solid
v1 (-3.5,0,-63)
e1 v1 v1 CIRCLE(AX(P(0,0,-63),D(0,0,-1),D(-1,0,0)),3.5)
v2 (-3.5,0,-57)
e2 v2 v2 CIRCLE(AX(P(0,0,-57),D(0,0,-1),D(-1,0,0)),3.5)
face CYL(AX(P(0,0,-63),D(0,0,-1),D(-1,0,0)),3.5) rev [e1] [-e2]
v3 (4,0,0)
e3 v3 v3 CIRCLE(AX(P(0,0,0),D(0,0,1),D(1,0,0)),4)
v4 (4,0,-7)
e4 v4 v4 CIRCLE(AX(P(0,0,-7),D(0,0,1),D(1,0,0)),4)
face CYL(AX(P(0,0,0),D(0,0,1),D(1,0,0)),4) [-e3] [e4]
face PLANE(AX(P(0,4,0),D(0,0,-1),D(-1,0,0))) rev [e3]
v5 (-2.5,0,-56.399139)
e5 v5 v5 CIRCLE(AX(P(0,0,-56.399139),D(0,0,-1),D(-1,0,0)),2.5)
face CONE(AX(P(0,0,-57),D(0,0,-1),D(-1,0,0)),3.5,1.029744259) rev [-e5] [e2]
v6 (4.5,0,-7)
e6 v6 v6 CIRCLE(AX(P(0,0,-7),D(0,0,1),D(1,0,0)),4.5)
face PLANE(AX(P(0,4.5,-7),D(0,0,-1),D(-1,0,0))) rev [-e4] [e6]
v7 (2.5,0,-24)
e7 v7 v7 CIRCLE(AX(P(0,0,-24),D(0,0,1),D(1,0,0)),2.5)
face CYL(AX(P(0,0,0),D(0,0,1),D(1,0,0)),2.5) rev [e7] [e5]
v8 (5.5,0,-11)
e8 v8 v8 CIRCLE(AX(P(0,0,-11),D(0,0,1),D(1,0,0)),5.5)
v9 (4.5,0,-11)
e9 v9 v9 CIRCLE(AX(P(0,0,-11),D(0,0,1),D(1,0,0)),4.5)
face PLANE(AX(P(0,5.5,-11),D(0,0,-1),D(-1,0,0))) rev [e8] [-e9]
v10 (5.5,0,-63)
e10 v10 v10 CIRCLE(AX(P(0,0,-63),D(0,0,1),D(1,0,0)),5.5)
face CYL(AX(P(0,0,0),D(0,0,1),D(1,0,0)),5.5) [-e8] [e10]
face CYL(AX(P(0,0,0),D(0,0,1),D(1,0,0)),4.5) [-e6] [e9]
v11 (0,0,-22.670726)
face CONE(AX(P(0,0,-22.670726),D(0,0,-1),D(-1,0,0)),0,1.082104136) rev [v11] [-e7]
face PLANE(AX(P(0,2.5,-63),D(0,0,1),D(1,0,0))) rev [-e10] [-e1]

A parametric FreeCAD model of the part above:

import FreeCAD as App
import Part
import Sketcher
from FreeCAD import Vector
Q = App.Units.Quantity

doc = App.newDocument("Part")
params = doc.addObject("Spreadsheet::Sheet", "Params")
for row, (alias, value) in enumerate([
    ("sketch1_width", "3 mm"),
    ("sketch1_width2", "1 mm"),
    ("sketch1_width3", "4 mm"),
    ("sketch1_height", "39 mm"),
    ("sketch1_height2", "52 mm"),
    ("revolution_angle", "360 deg"),
    ("sketch2_diameter", "7 mm"),
    ("hole_diameter", "7 mm"),
    ("hole_depth", "6 mm"),
], start=1):
    params.set(f"A{row}", alias)
    params.set(f"B{row}", "=" + value)
    params.setAlias(f"B{row}", alias)

body = doc.addObject("PartDesign::Body", "Body")

# Sketch on YZ plane
sketch1 = body.newObject("Sketcher::SketchObject", "Sketch")
sketch1.AttachmentSupport = (doc.getObject("YZ_Plane"), [""])
sketch1.MapMode = "FlatFace"
sketch1.addGeometry([
    Part.LineSegment(Vector(0, 0, 0), Vector(0, -22.670726, 0)),  # 0
    Part.LineSegment(Vector(0, -22.670726, 0), Vector(2.5, -24, 0)),  # 1
    Part.LineSegment(Vector(2.5, -24, 0), Vector(2.5, -63, 0)),  # 2
    Part.LineSegment(Vector(2.5, -63, 0), Vector(5.5, -63, 0)),  # 3
    Part.LineSegment(Vector(5.5, -63, 0), Vector(5.5, -11, 0)),  # 4
    Part.LineSegment(Vector(5.5, -11, 0), Vector(4.5, -11, 0)),  # 5
    Part.LineSegment(Vector(4.5, -11, 0), Vector(4.5, -7, 0)),  # 6
    Part.LineSegment(Vector(4.5, -7, 0), Vector(4, -7, 0)),  # 7
    Part.LineSegment(Vector(4, -7, 0), Vector(4, 0, 0)),  # 8
    Part.LineSegment(Vector(4, 0, 0), Vector(0, 0, 0)),  # 9
], False)
sketch1.addConstraint([
    Sketcher.Constraint("Coincident", 0, 2, 1, 1),
    Sketcher.Constraint("Coincident", 1, 2, 2, 1),
    Sketcher.Constraint("Coincident", 2, 2, 3, 1),
    Sketcher.Constraint("Coincident", 3, 2, 4, 1),
    Sketcher.Constraint("Coincident", 4, 2, 5, 1),
    Sketcher.Constraint("Coincident", 5, 2, 6, 1),
    Sketcher.Constraint("Coincident", 6, 2, 7, 1),
    Sketcher.Constraint("Coincident", 7, 2, 8, 1),
    Sketcher.Constraint("Coincident", 8, 2, 9, 1),
    Sketcher.Constraint("Coincident", 9, 2, 0, 1),
    Sketcher.Constraint("Vertical", 0),
    Sketcher.Constraint("Vertical", 2),
    Sketcher.Constraint("Horizontal", 3),
    Sketcher.Constraint("Vertical", 4),
    Sketcher.Constraint("Horizontal", 5),
    Sketcher.Constraint("Vertical", 6),
    Sketcher.Constraint("Horizontal", 7),
    Sketcher.Constraint("Vertical", 8),
    Sketcher.Constraint("Horizontal", 9),
    Sketcher.Constraint("Coincident", 9, 2, -1, 1),
    Sketcher.Constraint("Equal", 9, 6),
    Sketcher.Constraint("DistanceX", 3, 1, 3, 2, Q("3 mm")),
    Sketcher.Constraint("DistanceX", 5, 2, 5, 1, Q("1 mm")),
    Sketcher.Constraint("DistanceX", 9, 2, 9, 1, Q("4 mm")),
    Sketcher.Constraint("DistanceY", 2, 2, 2, 1, Q("39 mm")),
    Sketcher.Constraint("DistanceY", 4, 1, 4, 2, Q("52 mm")),
    Sketcher.Constraint("DistanceY", 8, 1, 8, 2, Q("7 mm")),
    Sketcher.Constraint("Angle", 1, Q("-28 deg")),
    Sketcher.Constraint("DistanceX", 7, 2, 7, 1, Q("0.5 mm")),
])
sketch1.setExpression("Constraints[21]", "Params.sketch1_width")
sketch1.setExpression("Constraints[22]", "Params.sketch1_width2")
sketch1.setExpression("Constraints[23]", "Params.sketch1_width3")
sketch1.setExpression("Constraints[24]", "Params.sketch1_height")
sketch1.setExpression("Constraints[25]", "Params.sketch1_height2")
revolution = body.newObject("PartDesign::Revolution", "Revolution")
revolution.Profile = sketch1
revolution.ReferenceAxis = (sketch1, ["V_Axis"])
revolution.setExpression("Angle", "Params.revolution_angle")

# Sketch on XY plane
sketch2 = body.newObject("Sketcher::SketchObject", "Sketch001")
sketch2.AttachmentSupport = (doc.getObject("XY_Plane"), [""])
sketch2.MapMode = "FlatFace"
sketch2.AttachmentOffset = App.Placement(Vector(0, 0, -63), App.Rotation())
sketch2.addGeometry(Part.Circle(Vector(0, 0, 0), Vector(0, 0, 1), 3.5), False)
sketch2.addConstraint([
    Sketcher.Constraint("Coincident", 0, 3, -1, 1),
    Sketcher.Constraint("Diameter", 0, Q("7 mm")),
])
sketch2.setExpression("Constraints[1]", "Params.sketch2_diameter")
doc.recompute()
hole = body.newObject("PartDesign::Hole", "Hole")
hole.Profile = sketch2
hole.ThreadType = "None"
hole.setExpression("Diameter", "Params.hole_diameter")
hole.DepthType = "Dimension"
hole.setExpression("Depth", "Params.hole_depth")
hole.DrillPoint = "Angled"
hole.DrillPointAngle = 118
hole.Reversed = True

doc.recompute()
